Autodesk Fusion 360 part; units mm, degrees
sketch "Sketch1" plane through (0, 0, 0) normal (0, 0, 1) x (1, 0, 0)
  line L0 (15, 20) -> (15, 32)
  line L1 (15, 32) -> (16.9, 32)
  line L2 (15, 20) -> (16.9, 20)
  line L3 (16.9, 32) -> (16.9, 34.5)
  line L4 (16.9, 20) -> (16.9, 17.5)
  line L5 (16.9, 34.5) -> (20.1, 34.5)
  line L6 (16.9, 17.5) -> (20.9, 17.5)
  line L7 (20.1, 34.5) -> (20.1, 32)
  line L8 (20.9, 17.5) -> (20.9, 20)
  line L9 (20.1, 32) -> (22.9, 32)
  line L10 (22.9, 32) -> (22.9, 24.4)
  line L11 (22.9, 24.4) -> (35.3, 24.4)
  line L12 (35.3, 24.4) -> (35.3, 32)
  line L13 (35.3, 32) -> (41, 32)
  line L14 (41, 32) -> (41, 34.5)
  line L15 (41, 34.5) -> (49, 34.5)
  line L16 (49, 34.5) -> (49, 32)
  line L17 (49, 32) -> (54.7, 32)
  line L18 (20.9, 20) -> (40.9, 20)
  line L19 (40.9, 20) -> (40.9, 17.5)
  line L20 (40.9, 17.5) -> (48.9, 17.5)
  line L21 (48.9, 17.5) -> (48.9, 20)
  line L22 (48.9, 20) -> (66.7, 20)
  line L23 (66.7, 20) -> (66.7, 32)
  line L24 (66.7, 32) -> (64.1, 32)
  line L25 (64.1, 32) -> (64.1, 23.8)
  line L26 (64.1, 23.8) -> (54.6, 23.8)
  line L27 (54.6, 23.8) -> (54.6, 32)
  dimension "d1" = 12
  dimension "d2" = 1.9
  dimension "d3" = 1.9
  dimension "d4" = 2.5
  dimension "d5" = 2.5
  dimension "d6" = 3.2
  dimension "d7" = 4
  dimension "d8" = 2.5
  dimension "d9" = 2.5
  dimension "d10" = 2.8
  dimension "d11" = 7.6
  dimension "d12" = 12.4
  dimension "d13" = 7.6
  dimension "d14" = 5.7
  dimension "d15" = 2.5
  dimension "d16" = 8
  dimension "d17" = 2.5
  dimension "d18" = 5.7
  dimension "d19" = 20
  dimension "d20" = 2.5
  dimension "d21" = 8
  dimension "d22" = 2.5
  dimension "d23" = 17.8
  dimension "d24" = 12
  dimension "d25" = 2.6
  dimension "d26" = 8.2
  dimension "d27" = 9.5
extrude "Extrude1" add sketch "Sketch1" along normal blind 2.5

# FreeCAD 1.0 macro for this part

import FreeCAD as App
import Part
import Sketcher

V = App.Vector
Q = App.Units.Quantity

doc = App.newDocument("Part")
params = doc.addObject("Spreadsheet::Sheet", "Params")
for row, (alias, value) in enumerate([
    ("sketch1_width", "4 mm"),
    ("sketch1_width2", "20 mm"),
    ("sketch1_width3", "8 mm"),
    ("sketch1_height", "12 mm"),
    ("sketch1_width4", "1.9 mm"),
    ("pad1_length", "2.5 mm"),
], start=1):
    params.set(f"A{row}", alias)
    params.set(f"B{row}", "=" + value)
    params.setAlias(f"B{row}", alias)

body = doc.addObject("PartDesign::Body", "Body")

# Sketch on XY plane
sketch1 = body.newObject("Sketcher::SketchObject", "Sketch")
sketch1.AttachmentSupport = (doc.getObject("XY_Plane"), [""])
sketch1.MapMode = "FlatFace"
sketch1.addGeometry([
    Part.LineSegment(V(15, 32, 0), V(15, 20, 0)),  # 0
    Part.LineSegment(V(15, 20, 0), V(16.9, 20, 0)),  # 1
    Part.LineSegment(V(16.9, 20, 0), V(16.9, 17.5, 0)),  # 2
    Part.LineSegment(V(16.9, 17.5, 0), V(20.9, 17.5, 0)),  # 3
    Part.LineSegment(V(20.9, 17.5, 0), V(20.9, 20, 0)),  # 4
    Part.LineSegment(V(20.9, 20, 0), V(40.9, 20, 0)),  # 5
    Part.LineSegment(V(40.9, 20, 0), V(40.9, 17.5, 0)),  # 6
    Part.LineSegment(V(40.9, 17.5, 0), V(48.9, 17.5, 0)),  # 7
    Part.LineSegment(V(48.9, 17.5, 0), V(48.9, 20, 0)),  # 8
    Part.LineSegment(V(48.9, 20, 0), V(66.7, 20, 0)),  # 9
    Part.LineSegment(V(66.7, 20, 0), V(66.7, 32, 0)),  # 10
    Part.LineSegment(V(66.7, 32, 0), V(64.1, 32, 0)),  # 11
    Part.LineSegment(V(64.1, 32, 0), V(64.1, 23.8, 0)),  # 12
    Part.LineSegment(V(64.1, 23.8, 0), V(54.6, 23.8, 0)),  # 13
    Part.LineSegment(V(54.6, 23.8, 0), V(54.6, 32, 0)),  # 14
    Part.LineSegment(V(54.6, 32, 0), V(49, 32, 0)),  # 15
    Part.LineSegment(V(49, 32, 0), V(49, 34.5, 0)),  # 16
    Part.LineSegment(V(49, 34.5, 0), V(41, 34.5, 0)),  # 17
    Part.LineSegment(V(41, 34.5, 0), V(41, 32, 0)),  # 18
    Part.LineSegment(V(41, 32, 0), V(35.3, 32, 0)),  # 19
    Part.LineSegment(V(35.3, 32, 0), V(35.3, 24.4, 0)),  # 20
    Part.LineSegment(V(35.3, 24.4, 0), V(22.9, 24.4, 0)),  # 21
    Part.LineSegment(V(22.9, 24.4, 0), V(22.9, 32, 0)),  # 22
    Part.LineSegment(V(22.9, 32, 0), V(20.1, 32, 0)),  # 23
    Part.LineSegment(V(20.1, 32, 0), V(20.1, 34.5, 0)),  # 24
    Part.LineSegment(V(20.1, 34.5, 0), V(16.9, 34.5, 0)),  # 25
    Part.LineSegment(V(16.9, 34.5, 0), V(16.9, 32, 0)),  # 26
    Part.LineSegment(V(16.9, 32, 0), V(15, 32, 0)),  # 27
], False)
sketch1.addConstraint([
    Sketcher.Constraint("Coincident", 0, 2, 1, 1),
    Sketcher.Constraint("Coincident", 1, 2, 2, 1),
    Sketcher.Constraint("Coincident", 2, 2, 3, 1),
    Sketcher.Constraint("Coincident", 3, 2, 4, 1),
    Sketcher.Constraint("Coincident", 4, 2, 5, 1),
    Sketcher.Constraint("Coincident", 5, 2, 6, 1),
    Sketcher.Constraint("Coincident", 6, 2, 7, 1),
    Sketcher.Constraint("Coincident", 7, 2, 8, 1),
    Sketcher.Constraint("Coincident", 8, 2, 9, 1),
    Sketcher.Constraint("Coincident", 9, 2, 10, 1),
    Sketcher.Constraint("Coincident", 10, 2, 11, 1),
    Sketcher.Constraint("Coincident", 11, 2, 12, 1),
    Sketcher.Constraint("Coincident", 12, 2, 13, 1),
    Sketcher.Constraint("Coincident", 13, 2, 14, 1),
    Sketcher.Constraint("Coincident", 14, 2, 15, 1),
    Sketcher.Constraint("Coincident", 15, 2, 16, 1),
    Sketcher.Constraint("Coincident", 16, 2, 17, 1),
    Sketcher.Constraint("Coincident", 17, 2, 18, 1),
    Sketcher.Constraint("Coincident", 18, 2, 19, 1),
    Sketcher.Constraint("Coincident", 19, 2, 20, 1),
    Sketcher.Constraint("Coincident", 20, 2, 21, 1),
    Sketcher.Constraint("Coincident", 21, 2, 22, 1),
    Sketcher.Constraint("Coincident", 22, 2, 23, 1),
    Sketcher.Constraint("Coincident", 23, 2, 24, 1),
    Sketcher.Constraint("Coincident", 24, 2, 25, 1),
    Sketcher.Constraint("Coincident", 25, 2, 26, 1),
    Sketcher.Constraint("Coincident", 26, 2, 27, 1),
    Sketcher.Constraint("Coincident", 27, 2, 0, 1),
    Sketcher.Constraint("Vertical", 0),
    Sketcher.Constraint("Horizontal", 1),
    Sketcher.Constraint("Vertical", 2),
    Sketcher.Constraint("Horizontal", 3),
    Sketcher.Constraint("Vertical", 4),
    Sketcher.Constraint("Horizontal", 5),
    Sketcher.Constraint("Vertical", 6),
    Sketcher.Constraint("Horizontal", 7),
    Sketcher.Constraint("Vertical", 8),
    Sketcher.Constraint("Horizontal", 9),
    Sketcher.Constraint("Vertical", 10),
    Sketcher.Constraint("Horizontal", 11),
    Sketcher.Constraint("Vertical", 12),
    Sketcher.Constraint("Horizontal", 13),
    Sketcher.Constraint("Vertical", 14),
    Sketcher.Constraint("Horizontal", 15),
    Sketcher.Constraint("Vertical", 16),
    Sketcher.Constraint("Horizontal", 17),
    Sketcher.Constraint("Vertical", 18),
    Sketcher.Constraint("Horizontal", 19),
    Sketcher.Constraint("Vertical", 20),
    Sketcher.Constraint("Horizontal", 21),
    Sketcher.Constraint("Vertical", 22),
    Sketcher.Constraint("Horizontal", 23),
    Sketcher.Constraint("Vertical", 24),
    Sketcher.Constraint("Horizontal", 25),
    Sketcher.Constraint("Vertical", 26),
    Sketcher.Constraint("Horizontal", 27),
    Sketcher.Constraint("Horizontal", 1, 2, 4, 2),
    Sketcher.Constraint("Horizontal", 3, 2, 6, 2),
    Sketcher.Constraint("Horizontal", 5, 2, 8, 2),
    Sketcher.Constraint("Horizontal", 11, 2, 14, 2),
    Sketcher.Constraint("Horizontal", 15, 2, 18, 2),
    Sketcher.Constraint("Horizontal", 19, 2, 22, 2),
    Sketcher.Constraint("Horizontal", 17, 2, 24, 2),
    Sketcher.Constraint("Horizontal", 23, 2, 26, 2),
    Sketcher.Constraint("Vertical", 2, 2, 25, 2),
    Sketcher.Constraint("Equal", 7, 17),
    Sketcher.Constraint("Equal", 8, 16),
    Sketcher.Constraint("DistanceX", 3, 1, 3, 2, Q("4 mm")),
    Sketcher.Constraint("DistanceX", 5, 1, 5, 2, Q("20 mm")),
    Sketcher.Constraint("DistanceX", 7, 1, 7, 2, Q("8 mm")),
    Sketcher.Constraint("DistanceY", 0, 2, 0, 1, Q("12 mm")),
    Sketcher.Constraint("DistanceX", 1, 1, 1, 2, Q("1.9 mm")),
    Sketcher.Constraint("DistanceX", 9, 1, 9, 2, Q("17.8 mm")),
    Sketcher.Constraint("DistanceX", 11, 2, 11, 1, Q("2.6 mm")),
    Sketcher.Constraint("DistanceX", 13, 2, 13, 1, Q("9.5 mm")),
    Sketcher.Constraint("DistanceX", 19, 2, 19, 1, Q("5.7 mm")),
    Sketcher.Constraint("DistanceX", 21, 2, 21, 1, Q("12.4 mm")),
    Sketcher.Constraint("DistanceX", 23, 2, 23, 1, Q("2.8 mm")),
    Sketcher.Constraint("DistanceX", 25, 2, 25, 1, Q("3.2 mm")),
    Sketcher.Constraint("DistanceY", 2, 2, 2, 1, Q("2.5 mm")),
    Sketcher.Constraint("DistanceY", 12, 2, 12, 1, Q("8.2 mm")),
    Sketcher.Constraint("DistanceY", 20, 2, 20, 1, Q("7.6 mm")),
    Sketcher.Constraint("DistanceY", -1, 1, 0, 2, Q("20 mm")),
    Sketcher.Constraint("DistanceX", -1, 1, 0, 2, Q("15 mm")),
])
sketch1.setExpression("Constraints[67]", "Params.sketch1_width")
sketch1.setExpression("Constraints[68]", "Params.sketch1_width2")
sketch1.setExpression("Constraints[69]", "Params.sketch1_width3")
sketch1.setExpression("Constraints[70]", "Params.sketch1_height")
sketch1.setExpression("Constraints[71]", "Params.sketch1_width4")
pad1 = body.newObject("PartDesign::Pad", "Pad")
pad1.Profile = sketch1
pad1.setExpression("Length", "Params.pad1_length")

doc.recompute()
